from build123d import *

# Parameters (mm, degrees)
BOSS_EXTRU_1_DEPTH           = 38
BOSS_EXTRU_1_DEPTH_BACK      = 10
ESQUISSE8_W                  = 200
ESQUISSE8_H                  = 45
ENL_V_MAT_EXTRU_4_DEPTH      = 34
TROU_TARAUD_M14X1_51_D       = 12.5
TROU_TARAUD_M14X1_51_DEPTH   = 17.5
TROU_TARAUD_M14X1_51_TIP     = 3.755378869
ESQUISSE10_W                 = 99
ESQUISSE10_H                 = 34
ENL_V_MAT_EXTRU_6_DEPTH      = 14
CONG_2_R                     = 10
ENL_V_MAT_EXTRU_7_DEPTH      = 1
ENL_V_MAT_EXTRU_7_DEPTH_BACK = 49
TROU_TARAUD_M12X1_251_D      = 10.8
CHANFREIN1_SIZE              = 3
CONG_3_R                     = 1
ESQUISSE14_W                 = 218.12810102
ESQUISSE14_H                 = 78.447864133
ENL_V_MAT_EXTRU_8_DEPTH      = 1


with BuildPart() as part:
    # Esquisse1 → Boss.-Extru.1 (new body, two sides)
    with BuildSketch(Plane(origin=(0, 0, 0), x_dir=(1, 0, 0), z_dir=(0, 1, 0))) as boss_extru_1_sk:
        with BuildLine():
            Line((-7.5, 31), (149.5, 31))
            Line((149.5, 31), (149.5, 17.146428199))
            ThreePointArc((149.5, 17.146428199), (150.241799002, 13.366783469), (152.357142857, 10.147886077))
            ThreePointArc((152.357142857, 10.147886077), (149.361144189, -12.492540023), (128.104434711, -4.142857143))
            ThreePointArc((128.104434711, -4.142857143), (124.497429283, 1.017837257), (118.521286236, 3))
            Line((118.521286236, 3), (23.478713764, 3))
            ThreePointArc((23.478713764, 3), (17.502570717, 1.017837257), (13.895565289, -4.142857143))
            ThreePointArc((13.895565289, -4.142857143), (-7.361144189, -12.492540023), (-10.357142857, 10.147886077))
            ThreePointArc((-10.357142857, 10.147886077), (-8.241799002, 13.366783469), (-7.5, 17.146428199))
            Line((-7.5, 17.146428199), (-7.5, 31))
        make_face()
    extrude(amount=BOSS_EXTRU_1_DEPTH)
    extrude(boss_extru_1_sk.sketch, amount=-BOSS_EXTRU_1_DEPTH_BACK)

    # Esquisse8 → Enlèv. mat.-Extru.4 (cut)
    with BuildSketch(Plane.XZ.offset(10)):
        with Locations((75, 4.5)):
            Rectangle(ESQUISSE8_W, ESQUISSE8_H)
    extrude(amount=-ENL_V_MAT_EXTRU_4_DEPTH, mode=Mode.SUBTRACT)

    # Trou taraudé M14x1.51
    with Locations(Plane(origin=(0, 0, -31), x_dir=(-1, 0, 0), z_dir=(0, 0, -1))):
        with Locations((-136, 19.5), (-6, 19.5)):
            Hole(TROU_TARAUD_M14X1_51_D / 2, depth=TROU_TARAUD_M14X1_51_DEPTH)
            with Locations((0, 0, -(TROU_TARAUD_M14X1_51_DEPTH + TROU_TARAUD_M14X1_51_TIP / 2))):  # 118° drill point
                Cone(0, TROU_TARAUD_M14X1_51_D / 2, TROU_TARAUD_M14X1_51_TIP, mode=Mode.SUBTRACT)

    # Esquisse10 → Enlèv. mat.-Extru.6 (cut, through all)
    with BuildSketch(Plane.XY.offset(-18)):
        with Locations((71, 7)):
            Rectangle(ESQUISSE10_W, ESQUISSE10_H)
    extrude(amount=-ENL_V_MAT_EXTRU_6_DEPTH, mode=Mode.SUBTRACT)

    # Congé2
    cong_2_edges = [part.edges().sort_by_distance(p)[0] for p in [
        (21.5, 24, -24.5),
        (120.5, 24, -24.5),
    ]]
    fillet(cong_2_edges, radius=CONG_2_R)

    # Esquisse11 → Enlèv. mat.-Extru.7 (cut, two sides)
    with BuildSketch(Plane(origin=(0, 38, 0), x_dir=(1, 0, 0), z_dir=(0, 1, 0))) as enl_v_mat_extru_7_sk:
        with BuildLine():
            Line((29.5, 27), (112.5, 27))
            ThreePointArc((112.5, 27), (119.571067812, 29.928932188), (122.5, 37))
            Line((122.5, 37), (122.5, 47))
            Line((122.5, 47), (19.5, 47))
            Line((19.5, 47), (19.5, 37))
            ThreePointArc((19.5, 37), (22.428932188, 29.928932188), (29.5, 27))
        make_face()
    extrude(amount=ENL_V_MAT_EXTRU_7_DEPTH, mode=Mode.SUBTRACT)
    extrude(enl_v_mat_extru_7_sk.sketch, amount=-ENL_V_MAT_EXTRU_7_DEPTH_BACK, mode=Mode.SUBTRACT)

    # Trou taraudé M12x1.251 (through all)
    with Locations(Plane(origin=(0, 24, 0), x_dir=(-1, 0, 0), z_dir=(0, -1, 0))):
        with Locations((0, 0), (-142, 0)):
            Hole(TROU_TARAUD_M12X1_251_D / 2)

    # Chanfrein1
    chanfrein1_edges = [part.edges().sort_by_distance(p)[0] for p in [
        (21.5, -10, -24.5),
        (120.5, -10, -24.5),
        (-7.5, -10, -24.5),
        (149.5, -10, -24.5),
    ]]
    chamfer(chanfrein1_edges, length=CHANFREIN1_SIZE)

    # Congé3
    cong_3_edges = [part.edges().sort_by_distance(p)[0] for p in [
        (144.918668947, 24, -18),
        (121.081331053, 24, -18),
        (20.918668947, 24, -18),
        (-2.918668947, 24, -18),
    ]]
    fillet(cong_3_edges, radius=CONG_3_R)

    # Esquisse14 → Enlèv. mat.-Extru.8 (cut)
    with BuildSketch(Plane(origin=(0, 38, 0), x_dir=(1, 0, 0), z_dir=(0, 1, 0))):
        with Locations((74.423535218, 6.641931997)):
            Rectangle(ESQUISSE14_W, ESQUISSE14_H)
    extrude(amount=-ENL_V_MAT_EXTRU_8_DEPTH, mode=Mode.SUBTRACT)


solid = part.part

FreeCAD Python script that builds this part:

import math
import FreeCAD as App
import Part
import Sketcher


def edges_at(feature, points):
    """Names of the edges that pass closest to the given points."""
    edges = feature.Shape.Edges
    near = lambda p: min(range(len(edges)), key=lambda i: edges[i].distToShape(Part.Vertex(*p))[0])
    return sorted({f"Edge{near(p) + 1}" for p in points})


def add_polygon(sketch, points):
    """Adds a closed chain of lines whose ends are joined by coincident constraints."""
    first, n = sketch.GeometryCount, len(points)
    for a, b in zip(points, points[1:] + points[:1]):
        sketch.addGeometry(Part.LineSegment(App.Vector(*a, 0), App.Vector(*b, 0)), False)
    for i in range(n):
        sketch.addConstraint(Sketcher.Constraint("Coincident", first + i, 2, first + (i + 1) % n, 1))

doc = App.newDocument("Part")
body = doc.addObject("PartDesign::Body", "Body")

# Sketch on XZ plane
sketch1 = doc.addObject("Sketcher::SketchObject", "Sketch")
body.addObject(sketch1)
sketch1.AttachmentSupport = (doc.XZ_Plane, [""])
sketch1.MapMode = "FlatFace"
sketch1.addGeometry(Part.LineSegment(App.Vector(150, -31, 0), App.Vector(-8, -31, 0)), False)
sketch1.addGeometry(Part.LineSegment(App.Vector(-8, -31, 0), App.Vector(-8, -17, 0)), False)
sketch1.addGeometry(Part.ArcOfCircle(Part.Circle(App.Vector(-17, -17, 0), App.Vector(0, 0, 1), 10), math.radians(0), math.radians(44)), False)
sketch1.addGeometry(Part.ArcOfCircle(Part.Circle(App.Vector(0, 0, 0), App.Vector(0, 0, 1), 14), math.radians(17), math.radians(224)), False)
sketch1.addGeometry(Part.ArcOfCircle(Part.Circle(App.Vector(23, 7, 0), App.Vector(0, 0, 1), 10), math.radians(-163), math.radians(-90)), False)
sketch1.addGeometry(Part.LineSegment(App.Vector(23, -3, 0), App.Vector(119, -3, 0)), False)
sketch1.addGeometry(Part.ArcOfCircle(Part.Circle(App.Vector(119, 7, 0), App.Vector(0, 0, 1), 10), math.radians(-90), math.radians(-17)), False)
sketch1.addGeometry(Part.ArcOfCircle(Part.Circle(App.Vector(142, 0, 0), App.Vector(0, 0, 1), 14), math.radians(-44), math.radians(163)), False)
sketch1.addGeometry(Part.ArcOfCircle(Part.Circle(App.Vector(159, -17, 0), App.Vector(0, 0, 1), 10), math.radians(136), math.radians(180)), False)
sketch1.addGeometry(Part.LineSegment(App.Vector(150, -17, 0), App.Vector(150, -31, 0)), False)
sketch1.addConstraint(Sketcher.Constraint("Coincident", 0, 2, 1, 1))
sketch1.addConstraint(Sketcher.Constraint("Tangent", 1, 2, 2, 1))
sketch1.addConstraint(Sketcher.Constraint("Tangent", 2, 2, 3, 2))
sketch1.addConstraint(Sketcher.Constraint("Tangent", 3, 1, 4, 1))
sketch1.addConstraint(Sketcher.Constraint("Tangent", 4, 2, 5, 1))
sketch1.addConstraint(Sketcher.Constraint("Tangent", 5, 2, 6, 1))
sketch1.addConstraint(Sketcher.Constraint("Tangent", 6, 2, 7, 2))
sketch1.addConstraint(Sketcher.Constraint("Tangent", 7, 1, 8, 1))
sketch1.addConstraint(Sketcher.Constraint("Tangent", 8, 2, 9, 1))
sketch1.addConstraint(Sketcher.Constraint("Coincident", 9, 2, 0, 1))
sketch1.addConstraint(Sketcher.Constraint("Horizontal", 0))
sketch1.addConstraint(Sketcher.Constraint("Vertical", 1))
sketch1.addConstraint(Sketcher.Constraint("Horizontal", 5))
sketch1.addConstraint(Sketcher.Constraint("Vertical", 9))
sketch1.addConstraint(Sketcher.Constraint("Coincident", 3, 3, -1, 1))
sketch1.addConstraint(Sketcher.Constraint("Equal", 2, 4))
sketch1.addConstraint(Sketcher.Constraint("Equal", 4, 6))
sketch1.addConstraint(Sketcher.Constraint("Equal", 3, 7))
sketch1.addConstraint(Sketcher.Constraint("Equal", 6, 8))
sketch1.addConstraint(Sketcher.Constraint("PointOnObject", 7, 3, -1))
sketch1.addConstraint(Sketcher.Constraint("Horizontal", 2, 3, 8, 3))
sketch1.addConstraint(Sketcher.Constraint("Radius", 2, 10.0))
sketch1.addConstraint(Sketcher.Constraint("Radius", 3, 14.5))
sketch1.addConstraint(Sketcher.Constraint("DistanceX", 0, 2, 0, 1, 157.0))
sketch1.addConstraint(Sketcher.Constraint("DistanceY", -1, 1, 4, 3, 7.0))
sketch1.addConstraint(Sketcher.Constraint("DistanceX", -1, 1, 7, 3, 142.0))
sketch1.addConstraint(Sketcher.Constraint("DistanceY", 0, 2, -1, 1, 31.0))
pad1 = doc.addObject("PartDesign::Pad", "Pad")
body.addObject(pad1)
pad1.Profile = sketch1
pad1.Type = "TwoLengths"
pad1.Length = 38
pad1.Length2 = 10
pad1.Reversed = True

# Sketch on XZ plane
sketch2 = doc.addObject("Sketcher::SketchObject", "Sketch001")
body.addObject(sketch2)
sketch2.AttachmentSupport = (doc.XZ_Plane, [""])
sketch2.MapMode = "FlatFace"
sketch2.AttachmentOffset = App.Placement(App.Vector(0, 0, 10), App.Rotation())
add_polygon(sketch2, [(-25, 27), (-25, -18), (175, -18), (175, 27)])  # lines 0-3
sketch2.addConstraint(Sketcher.Constraint("Vertical", 0))
sketch2.addConstraint(Sketcher.Constraint("Horizontal", 1))
sketch2.addConstraint(Sketcher.Constraint("Vertical", 2))
sketch2.addConstraint(Sketcher.Constraint("Horizontal", 3))
sketch2.addConstraint(Sketcher.Constraint("DistanceX", 1, 1, 1, 2, 200.0))
sketch2.addConstraint(Sketcher.Constraint("DistanceY", 0, 2, 0, 1, 45.0))
sketch2.addConstraint(Sketcher.Constraint("DistanceX", 0, 2, -1, 1, 25.0))
sketch2.addConstraint(Sketcher.Constraint("DistanceY", 0, 2, -1, 1, 18.0))
pocket1 = doc.addObject("PartDesign::Pocket", "Pocket")
body.addObject(pocket1)
pocket1.Profile = sketch2
pocket1.Length = 34

# Sketch on XY plane
sketch3 = doc.addObject("Sketcher::SketchObject", "Sketch002")
body.addObject(sketch3)
sketch3.AttachmentSupport = (doc.XY_Plane, [""])
sketch3.MapMode = "FlatFace"
sketch3.AttachmentOffset = App.Placement(App.Vector(0, 0, -31), App.Rotation())
sketch3.addGeometry(Part.Circle(App.Vector(136, 20, 0), App.Vector(0, 0, 1), 6), False)
sketch3.addGeometry(Part.Circle(App.Vector(6, 20, 0), App.Vector(0, 0, 1), 6), False)
sketch3.addConstraint(Sketcher.Constraint("Equal", 0, 1))
sketch3.addConstraint(Sketcher.Constraint("Horizontal", 0, 3, 1, 3))
sketch3.addConstraint(Sketcher.Constraint("Diameter", 0, 12.5))
sketch3.addConstraint(Sketcher.Constraint("DistanceX", -1, 1, 0, 3, 136.0))
sketch3.addConstraint(Sketcher.Constraint("DistanceX", -1, 1, 1, 3, 6.0))
sketch3.addConstraint(Sketcher.Constraint("DistanceY", -1, 1, 0, 3, 19.5))
doc.recompute()
hole = doc.addObject("PartDesign::Hole", "Hole")
body.addObject(hole)
hole.Profile = sketch3
hole.ThreadType = "None"
hole.Diameter = 12.5
hole.DepthType = "Dimension"
hole.Depth = 17.5
hole.DrillPoint = "Angled"
hole.DrillPointAngle = 118
hole.Reversed = True

# Sketch on XY plane
sketch4 = doc.addObject("Sketcher::SketchObject", "Sketch003")
body.addObject(sketch4)
sketch4.AttachmentSupport = (doc.XY_Plane, [""])
sketch4.MapMode = "FlatFace"
sketch4.AttachmentOffset = App.Placement(App.Vector(0, 0, -18), App.Rotation())
add_polygon(sketch4, [(22, 24), (22, -10), (120, -10), (120, 24)])  # lines 0-3
sketch4.addConstraint(Sketcher.Constraint("Vertical", 0))
sketch4.addConstraint(Sketcher.Constraint("Horizontal", 1))
sketch4.addConstraint(Sketcher.Constraint("Vertical", 2))
sketch4.addConstraint(Sketcher.Constraint("Horizontal", 3))
sketch4.addConstraint(Sketcher.Constraint("DistanceX", 1, 1, 1, 2, 99.0))
sketch4.addConstraint(Sketcher.Constraint("DistanceY", 0, 2, 0, 1, 34.0))
sketch4.addConstraint(Sketcher.Constraint("DistanceY", 0, 2, -1, 1, 10.0))
sketch4.addConstraint(Sketcher.Constraint("DistanceX", -1, 1, 0, 2, 21.5))
pocket2 = doc.addObject("PartDesign::Pocket", "Pocket001")
body.addObject(pocket2)
pocket2.Profile = sketch4
pocket2.Type = "ThroughAll"
doc.recompute()

fillet = doc.addObject("PartDesign::Fillet", "Fillet")
body.addObject(fillet)
fillet.Base = (pocket2, edges_at(pocket2, [(21.5, 24, -24.5), (120.5, 24, -24.5)]))
fillet.Radius = 10

# Sketch on XZ plane
sketch5 = doc.addObject("Sketcher::SketchObject", "Sketch004")
body.addObject(sketch5)
sketch5.AttachmentSupport = (doc.XZ_Plane, [""])
sketch5.MapMode = "FlatFace"
sketch5.AttachmentOffset = App.Placement(App.Vector(0, 0, -38), App.Rotation())
sketch5.addGeometry(Part.LineSegment(App.Vector(30, -27, 0), App.Vector(112, -27, 0)), False)
sketch5.addGeometry(Part.ArcOfCircle(Part.Circle(App.Vector(112, -37, 0), App.Vector(0, 0, 1), 10), math.radians(0), math.radians(90)), False)
sketch5.addGeometry(Part.LineSegment(App.Vector(122, -37, 0), App.Vector(122, -47, 0)), False)
sketch5.addGeometry(Part.LineSegment(App.Vector(122, -47, 0), App.Vector(20, -47, 0)), False)
sketch5.addGeometry(Part.LineSegment(App.Vector(20, -47, 0), App.Vector(20, -37, 0)), False)
sketch5.addGeometry(Part.ArcOfCircle(Part.Circle(App.Vector(30, -37, 0), App.Vector(0, 0, 1), 10), math.radians(90), math.radians(180)), False)
sketch5.addConstraint(Sketcher.Constraint("Tangent", 0, 2, 1, 2))
sketch5.addConstraint(Sketcher.Constraint("Tangent", 1, 1, 2, 1))
sketch5.addConstraint(Sketcher.Constraint("Coincident", 2, 2, 3, 1))
sketch5.addConstraint(Sketcher.Constraint("Coincident", 3, 2, 4, 1))
sketch5.addConstraint(Sketcher.Constraint("Tangent", 4, 2, 5, 2))
sketch5.addConstraint(Sketcher.Constraint("Tangent", 5, 1, 0, 1))
sketch5.addConstraint(Sketcher.Constraint("Horizontal", 0))
sketch5.addConstraint(Sketcher.Constraint("Vertical", 2))
sketch5.addConstraint(Sketcher.Constraint("Horizontal", 3))
sketch5.addConstraint(Sketcher.Constraint("Vertical", 4))
sketch5.addConstraint(Sketcher.Constraint("Equal", 1, 5))
sketch5.addConstraint(Sketcher.Constraint("Radius", 1, 10.0))
sketch5.addConstraint(Sketcher.Constraint("DistanceX", 0, 1, 0, 2, 83.0))
sketch5.addConstraint(Sketcher.Constraint("DistanceY", 2, 2, 2, 1, 10.0))
sketch5.addConstraint(Sketcher.Constraint("DistanceY", 1, 3, -1, 1, 37.0))
sketch5.addConstraint(Sketcher.Constraint("DistanceX", -1, 1, 1, 3, 112.5))
pocket3 = doc.addObject("PartDesign::Pocket", "Pocket002")
body.addObject(pocket3)
pocket3.Profile = sketch5
pocket3.Type = "ThroughAll"
pocket3.Midplane = True

# Sketch on XZ plane
sketch6 = doc.addObject("Sketcher::SketchObject", "Sketch005")
body.addObject(sketch6)
sketch6.AttachmentSupport = (doc.XZ_Plane, [""])
sketch6.MapMode = "FlatFace"
sketch6.AttachmentOffset = App.Placement(App.Vector(0, 0, -24), App.Rotation())
sketch6.addGeometry(Part.Circle(App.Vector(0, 0, 0), App.Vector(0, 0, 1), 5), False)
sketch6.addGeometry(Part.Circle(App.Vector(142, 0, 0), App.Vector(0, 0, 1), 5), False)
sketch6.addConstraint(Sketcher.Constraint("Coincident", 0, 3, -1, 1))
sketch6.addConstraint(Sketcher.Constraint("Equal", 0, 1))
sketch6.addConstraint(Sketcher.Constraint("PointOnObject", 1, 3, -1))
sketch6.addConstraint(Sketcher.Constraint("Diameter", 0, 10.8))
sketch6.addConstraint(Sketcher.Constraint("DistanceX", -1, 1, 1, 3, 142.0))
doc.recompute()
hole2 = doc.addObject("PartDesign::Hole", "Hole001")
body.addObject(hole2)
hole2.Profile = sketch6
hole2.ThreadType = "None"
hole2.Diameter = 10.8
hole2.DepthType = "ThroughAll"
doc.recompute()

chamfer = doc.addObject("PartDesign::Chamfer", "Chamfer")
body.addObject(chamfer)
chamfer.Base = (hole2, edges_at(hole2, [
    (21.5, -10, -24.5),
    (120.5, -10, -24.5),
    (-7.5, -10, -24.5),
    (149.5, -10, -24.5),
]))
chamfer.Size = 3
doc.recompute()

fillet2 = doc.addObject("PartDesign::Fillet", "Fillet001")
body.addObject(fillet2)
fillet2.Base = (chamfer, edges_at(chamfer, [
    (144.919, 24, -18),
    (121.081, 24, -18),
    (20.919, 24, -18),
    (-2.919, 24, -18),
]))
fillet2.Radius = 1

# Sketch on XZ plane
sketch7 = doc.addObject("Sketcher::SketchObject", "Sketch006")
body.addObject(sketch7)
sketch7.AttachmentSupport = (doc.XZ_Plane, [""])
sketch7.MapMode = "FlatFace"
sketch7.AttachmentOffset = App.Placement(App.Vector(0, 0, -38), App.Rotation())
add_polygon(sketch7, [(-35, -46), (-35, 33), (183, 33), (183, -46)])  # lines 0-3
sketch7.addConstraint(Sketcher.Constraint("Vertical", 0))
sketch7.addConstraint(Sketcher.Constraint("Horizontal", 1))
sketch7.addConstraint(Sketcher.Constraint("Vertical", 2))
sketch7.addConstraint(Sketcher.Constraint("Horizontal", 3))
sketch7.addConstraint(Sketcher.Constraint("DistanceX", 1, 1, 1, 2, 218.128101))
sketch7.addConstraint(Sketcher.Constraint("DistanceY", -1, 1, 0, 2, 32.582))
sketch7.addConstraint(Sketcher.Constraint("DistanceY", 0, 1, 0, 2, 78.447864))
sketch7.addConstraint(Sketcher.Constraint("DistanceX", 0, 2, -1, 1, 34.640515))
pocket4 = doc.addObject("PartDesign::Pocket", "Pocket003")
body.addObject(pocket4)
pocket4.Profile = sketch7
pocket4.Length = 1
pocket4.Reversed = True

doc.recompute()
